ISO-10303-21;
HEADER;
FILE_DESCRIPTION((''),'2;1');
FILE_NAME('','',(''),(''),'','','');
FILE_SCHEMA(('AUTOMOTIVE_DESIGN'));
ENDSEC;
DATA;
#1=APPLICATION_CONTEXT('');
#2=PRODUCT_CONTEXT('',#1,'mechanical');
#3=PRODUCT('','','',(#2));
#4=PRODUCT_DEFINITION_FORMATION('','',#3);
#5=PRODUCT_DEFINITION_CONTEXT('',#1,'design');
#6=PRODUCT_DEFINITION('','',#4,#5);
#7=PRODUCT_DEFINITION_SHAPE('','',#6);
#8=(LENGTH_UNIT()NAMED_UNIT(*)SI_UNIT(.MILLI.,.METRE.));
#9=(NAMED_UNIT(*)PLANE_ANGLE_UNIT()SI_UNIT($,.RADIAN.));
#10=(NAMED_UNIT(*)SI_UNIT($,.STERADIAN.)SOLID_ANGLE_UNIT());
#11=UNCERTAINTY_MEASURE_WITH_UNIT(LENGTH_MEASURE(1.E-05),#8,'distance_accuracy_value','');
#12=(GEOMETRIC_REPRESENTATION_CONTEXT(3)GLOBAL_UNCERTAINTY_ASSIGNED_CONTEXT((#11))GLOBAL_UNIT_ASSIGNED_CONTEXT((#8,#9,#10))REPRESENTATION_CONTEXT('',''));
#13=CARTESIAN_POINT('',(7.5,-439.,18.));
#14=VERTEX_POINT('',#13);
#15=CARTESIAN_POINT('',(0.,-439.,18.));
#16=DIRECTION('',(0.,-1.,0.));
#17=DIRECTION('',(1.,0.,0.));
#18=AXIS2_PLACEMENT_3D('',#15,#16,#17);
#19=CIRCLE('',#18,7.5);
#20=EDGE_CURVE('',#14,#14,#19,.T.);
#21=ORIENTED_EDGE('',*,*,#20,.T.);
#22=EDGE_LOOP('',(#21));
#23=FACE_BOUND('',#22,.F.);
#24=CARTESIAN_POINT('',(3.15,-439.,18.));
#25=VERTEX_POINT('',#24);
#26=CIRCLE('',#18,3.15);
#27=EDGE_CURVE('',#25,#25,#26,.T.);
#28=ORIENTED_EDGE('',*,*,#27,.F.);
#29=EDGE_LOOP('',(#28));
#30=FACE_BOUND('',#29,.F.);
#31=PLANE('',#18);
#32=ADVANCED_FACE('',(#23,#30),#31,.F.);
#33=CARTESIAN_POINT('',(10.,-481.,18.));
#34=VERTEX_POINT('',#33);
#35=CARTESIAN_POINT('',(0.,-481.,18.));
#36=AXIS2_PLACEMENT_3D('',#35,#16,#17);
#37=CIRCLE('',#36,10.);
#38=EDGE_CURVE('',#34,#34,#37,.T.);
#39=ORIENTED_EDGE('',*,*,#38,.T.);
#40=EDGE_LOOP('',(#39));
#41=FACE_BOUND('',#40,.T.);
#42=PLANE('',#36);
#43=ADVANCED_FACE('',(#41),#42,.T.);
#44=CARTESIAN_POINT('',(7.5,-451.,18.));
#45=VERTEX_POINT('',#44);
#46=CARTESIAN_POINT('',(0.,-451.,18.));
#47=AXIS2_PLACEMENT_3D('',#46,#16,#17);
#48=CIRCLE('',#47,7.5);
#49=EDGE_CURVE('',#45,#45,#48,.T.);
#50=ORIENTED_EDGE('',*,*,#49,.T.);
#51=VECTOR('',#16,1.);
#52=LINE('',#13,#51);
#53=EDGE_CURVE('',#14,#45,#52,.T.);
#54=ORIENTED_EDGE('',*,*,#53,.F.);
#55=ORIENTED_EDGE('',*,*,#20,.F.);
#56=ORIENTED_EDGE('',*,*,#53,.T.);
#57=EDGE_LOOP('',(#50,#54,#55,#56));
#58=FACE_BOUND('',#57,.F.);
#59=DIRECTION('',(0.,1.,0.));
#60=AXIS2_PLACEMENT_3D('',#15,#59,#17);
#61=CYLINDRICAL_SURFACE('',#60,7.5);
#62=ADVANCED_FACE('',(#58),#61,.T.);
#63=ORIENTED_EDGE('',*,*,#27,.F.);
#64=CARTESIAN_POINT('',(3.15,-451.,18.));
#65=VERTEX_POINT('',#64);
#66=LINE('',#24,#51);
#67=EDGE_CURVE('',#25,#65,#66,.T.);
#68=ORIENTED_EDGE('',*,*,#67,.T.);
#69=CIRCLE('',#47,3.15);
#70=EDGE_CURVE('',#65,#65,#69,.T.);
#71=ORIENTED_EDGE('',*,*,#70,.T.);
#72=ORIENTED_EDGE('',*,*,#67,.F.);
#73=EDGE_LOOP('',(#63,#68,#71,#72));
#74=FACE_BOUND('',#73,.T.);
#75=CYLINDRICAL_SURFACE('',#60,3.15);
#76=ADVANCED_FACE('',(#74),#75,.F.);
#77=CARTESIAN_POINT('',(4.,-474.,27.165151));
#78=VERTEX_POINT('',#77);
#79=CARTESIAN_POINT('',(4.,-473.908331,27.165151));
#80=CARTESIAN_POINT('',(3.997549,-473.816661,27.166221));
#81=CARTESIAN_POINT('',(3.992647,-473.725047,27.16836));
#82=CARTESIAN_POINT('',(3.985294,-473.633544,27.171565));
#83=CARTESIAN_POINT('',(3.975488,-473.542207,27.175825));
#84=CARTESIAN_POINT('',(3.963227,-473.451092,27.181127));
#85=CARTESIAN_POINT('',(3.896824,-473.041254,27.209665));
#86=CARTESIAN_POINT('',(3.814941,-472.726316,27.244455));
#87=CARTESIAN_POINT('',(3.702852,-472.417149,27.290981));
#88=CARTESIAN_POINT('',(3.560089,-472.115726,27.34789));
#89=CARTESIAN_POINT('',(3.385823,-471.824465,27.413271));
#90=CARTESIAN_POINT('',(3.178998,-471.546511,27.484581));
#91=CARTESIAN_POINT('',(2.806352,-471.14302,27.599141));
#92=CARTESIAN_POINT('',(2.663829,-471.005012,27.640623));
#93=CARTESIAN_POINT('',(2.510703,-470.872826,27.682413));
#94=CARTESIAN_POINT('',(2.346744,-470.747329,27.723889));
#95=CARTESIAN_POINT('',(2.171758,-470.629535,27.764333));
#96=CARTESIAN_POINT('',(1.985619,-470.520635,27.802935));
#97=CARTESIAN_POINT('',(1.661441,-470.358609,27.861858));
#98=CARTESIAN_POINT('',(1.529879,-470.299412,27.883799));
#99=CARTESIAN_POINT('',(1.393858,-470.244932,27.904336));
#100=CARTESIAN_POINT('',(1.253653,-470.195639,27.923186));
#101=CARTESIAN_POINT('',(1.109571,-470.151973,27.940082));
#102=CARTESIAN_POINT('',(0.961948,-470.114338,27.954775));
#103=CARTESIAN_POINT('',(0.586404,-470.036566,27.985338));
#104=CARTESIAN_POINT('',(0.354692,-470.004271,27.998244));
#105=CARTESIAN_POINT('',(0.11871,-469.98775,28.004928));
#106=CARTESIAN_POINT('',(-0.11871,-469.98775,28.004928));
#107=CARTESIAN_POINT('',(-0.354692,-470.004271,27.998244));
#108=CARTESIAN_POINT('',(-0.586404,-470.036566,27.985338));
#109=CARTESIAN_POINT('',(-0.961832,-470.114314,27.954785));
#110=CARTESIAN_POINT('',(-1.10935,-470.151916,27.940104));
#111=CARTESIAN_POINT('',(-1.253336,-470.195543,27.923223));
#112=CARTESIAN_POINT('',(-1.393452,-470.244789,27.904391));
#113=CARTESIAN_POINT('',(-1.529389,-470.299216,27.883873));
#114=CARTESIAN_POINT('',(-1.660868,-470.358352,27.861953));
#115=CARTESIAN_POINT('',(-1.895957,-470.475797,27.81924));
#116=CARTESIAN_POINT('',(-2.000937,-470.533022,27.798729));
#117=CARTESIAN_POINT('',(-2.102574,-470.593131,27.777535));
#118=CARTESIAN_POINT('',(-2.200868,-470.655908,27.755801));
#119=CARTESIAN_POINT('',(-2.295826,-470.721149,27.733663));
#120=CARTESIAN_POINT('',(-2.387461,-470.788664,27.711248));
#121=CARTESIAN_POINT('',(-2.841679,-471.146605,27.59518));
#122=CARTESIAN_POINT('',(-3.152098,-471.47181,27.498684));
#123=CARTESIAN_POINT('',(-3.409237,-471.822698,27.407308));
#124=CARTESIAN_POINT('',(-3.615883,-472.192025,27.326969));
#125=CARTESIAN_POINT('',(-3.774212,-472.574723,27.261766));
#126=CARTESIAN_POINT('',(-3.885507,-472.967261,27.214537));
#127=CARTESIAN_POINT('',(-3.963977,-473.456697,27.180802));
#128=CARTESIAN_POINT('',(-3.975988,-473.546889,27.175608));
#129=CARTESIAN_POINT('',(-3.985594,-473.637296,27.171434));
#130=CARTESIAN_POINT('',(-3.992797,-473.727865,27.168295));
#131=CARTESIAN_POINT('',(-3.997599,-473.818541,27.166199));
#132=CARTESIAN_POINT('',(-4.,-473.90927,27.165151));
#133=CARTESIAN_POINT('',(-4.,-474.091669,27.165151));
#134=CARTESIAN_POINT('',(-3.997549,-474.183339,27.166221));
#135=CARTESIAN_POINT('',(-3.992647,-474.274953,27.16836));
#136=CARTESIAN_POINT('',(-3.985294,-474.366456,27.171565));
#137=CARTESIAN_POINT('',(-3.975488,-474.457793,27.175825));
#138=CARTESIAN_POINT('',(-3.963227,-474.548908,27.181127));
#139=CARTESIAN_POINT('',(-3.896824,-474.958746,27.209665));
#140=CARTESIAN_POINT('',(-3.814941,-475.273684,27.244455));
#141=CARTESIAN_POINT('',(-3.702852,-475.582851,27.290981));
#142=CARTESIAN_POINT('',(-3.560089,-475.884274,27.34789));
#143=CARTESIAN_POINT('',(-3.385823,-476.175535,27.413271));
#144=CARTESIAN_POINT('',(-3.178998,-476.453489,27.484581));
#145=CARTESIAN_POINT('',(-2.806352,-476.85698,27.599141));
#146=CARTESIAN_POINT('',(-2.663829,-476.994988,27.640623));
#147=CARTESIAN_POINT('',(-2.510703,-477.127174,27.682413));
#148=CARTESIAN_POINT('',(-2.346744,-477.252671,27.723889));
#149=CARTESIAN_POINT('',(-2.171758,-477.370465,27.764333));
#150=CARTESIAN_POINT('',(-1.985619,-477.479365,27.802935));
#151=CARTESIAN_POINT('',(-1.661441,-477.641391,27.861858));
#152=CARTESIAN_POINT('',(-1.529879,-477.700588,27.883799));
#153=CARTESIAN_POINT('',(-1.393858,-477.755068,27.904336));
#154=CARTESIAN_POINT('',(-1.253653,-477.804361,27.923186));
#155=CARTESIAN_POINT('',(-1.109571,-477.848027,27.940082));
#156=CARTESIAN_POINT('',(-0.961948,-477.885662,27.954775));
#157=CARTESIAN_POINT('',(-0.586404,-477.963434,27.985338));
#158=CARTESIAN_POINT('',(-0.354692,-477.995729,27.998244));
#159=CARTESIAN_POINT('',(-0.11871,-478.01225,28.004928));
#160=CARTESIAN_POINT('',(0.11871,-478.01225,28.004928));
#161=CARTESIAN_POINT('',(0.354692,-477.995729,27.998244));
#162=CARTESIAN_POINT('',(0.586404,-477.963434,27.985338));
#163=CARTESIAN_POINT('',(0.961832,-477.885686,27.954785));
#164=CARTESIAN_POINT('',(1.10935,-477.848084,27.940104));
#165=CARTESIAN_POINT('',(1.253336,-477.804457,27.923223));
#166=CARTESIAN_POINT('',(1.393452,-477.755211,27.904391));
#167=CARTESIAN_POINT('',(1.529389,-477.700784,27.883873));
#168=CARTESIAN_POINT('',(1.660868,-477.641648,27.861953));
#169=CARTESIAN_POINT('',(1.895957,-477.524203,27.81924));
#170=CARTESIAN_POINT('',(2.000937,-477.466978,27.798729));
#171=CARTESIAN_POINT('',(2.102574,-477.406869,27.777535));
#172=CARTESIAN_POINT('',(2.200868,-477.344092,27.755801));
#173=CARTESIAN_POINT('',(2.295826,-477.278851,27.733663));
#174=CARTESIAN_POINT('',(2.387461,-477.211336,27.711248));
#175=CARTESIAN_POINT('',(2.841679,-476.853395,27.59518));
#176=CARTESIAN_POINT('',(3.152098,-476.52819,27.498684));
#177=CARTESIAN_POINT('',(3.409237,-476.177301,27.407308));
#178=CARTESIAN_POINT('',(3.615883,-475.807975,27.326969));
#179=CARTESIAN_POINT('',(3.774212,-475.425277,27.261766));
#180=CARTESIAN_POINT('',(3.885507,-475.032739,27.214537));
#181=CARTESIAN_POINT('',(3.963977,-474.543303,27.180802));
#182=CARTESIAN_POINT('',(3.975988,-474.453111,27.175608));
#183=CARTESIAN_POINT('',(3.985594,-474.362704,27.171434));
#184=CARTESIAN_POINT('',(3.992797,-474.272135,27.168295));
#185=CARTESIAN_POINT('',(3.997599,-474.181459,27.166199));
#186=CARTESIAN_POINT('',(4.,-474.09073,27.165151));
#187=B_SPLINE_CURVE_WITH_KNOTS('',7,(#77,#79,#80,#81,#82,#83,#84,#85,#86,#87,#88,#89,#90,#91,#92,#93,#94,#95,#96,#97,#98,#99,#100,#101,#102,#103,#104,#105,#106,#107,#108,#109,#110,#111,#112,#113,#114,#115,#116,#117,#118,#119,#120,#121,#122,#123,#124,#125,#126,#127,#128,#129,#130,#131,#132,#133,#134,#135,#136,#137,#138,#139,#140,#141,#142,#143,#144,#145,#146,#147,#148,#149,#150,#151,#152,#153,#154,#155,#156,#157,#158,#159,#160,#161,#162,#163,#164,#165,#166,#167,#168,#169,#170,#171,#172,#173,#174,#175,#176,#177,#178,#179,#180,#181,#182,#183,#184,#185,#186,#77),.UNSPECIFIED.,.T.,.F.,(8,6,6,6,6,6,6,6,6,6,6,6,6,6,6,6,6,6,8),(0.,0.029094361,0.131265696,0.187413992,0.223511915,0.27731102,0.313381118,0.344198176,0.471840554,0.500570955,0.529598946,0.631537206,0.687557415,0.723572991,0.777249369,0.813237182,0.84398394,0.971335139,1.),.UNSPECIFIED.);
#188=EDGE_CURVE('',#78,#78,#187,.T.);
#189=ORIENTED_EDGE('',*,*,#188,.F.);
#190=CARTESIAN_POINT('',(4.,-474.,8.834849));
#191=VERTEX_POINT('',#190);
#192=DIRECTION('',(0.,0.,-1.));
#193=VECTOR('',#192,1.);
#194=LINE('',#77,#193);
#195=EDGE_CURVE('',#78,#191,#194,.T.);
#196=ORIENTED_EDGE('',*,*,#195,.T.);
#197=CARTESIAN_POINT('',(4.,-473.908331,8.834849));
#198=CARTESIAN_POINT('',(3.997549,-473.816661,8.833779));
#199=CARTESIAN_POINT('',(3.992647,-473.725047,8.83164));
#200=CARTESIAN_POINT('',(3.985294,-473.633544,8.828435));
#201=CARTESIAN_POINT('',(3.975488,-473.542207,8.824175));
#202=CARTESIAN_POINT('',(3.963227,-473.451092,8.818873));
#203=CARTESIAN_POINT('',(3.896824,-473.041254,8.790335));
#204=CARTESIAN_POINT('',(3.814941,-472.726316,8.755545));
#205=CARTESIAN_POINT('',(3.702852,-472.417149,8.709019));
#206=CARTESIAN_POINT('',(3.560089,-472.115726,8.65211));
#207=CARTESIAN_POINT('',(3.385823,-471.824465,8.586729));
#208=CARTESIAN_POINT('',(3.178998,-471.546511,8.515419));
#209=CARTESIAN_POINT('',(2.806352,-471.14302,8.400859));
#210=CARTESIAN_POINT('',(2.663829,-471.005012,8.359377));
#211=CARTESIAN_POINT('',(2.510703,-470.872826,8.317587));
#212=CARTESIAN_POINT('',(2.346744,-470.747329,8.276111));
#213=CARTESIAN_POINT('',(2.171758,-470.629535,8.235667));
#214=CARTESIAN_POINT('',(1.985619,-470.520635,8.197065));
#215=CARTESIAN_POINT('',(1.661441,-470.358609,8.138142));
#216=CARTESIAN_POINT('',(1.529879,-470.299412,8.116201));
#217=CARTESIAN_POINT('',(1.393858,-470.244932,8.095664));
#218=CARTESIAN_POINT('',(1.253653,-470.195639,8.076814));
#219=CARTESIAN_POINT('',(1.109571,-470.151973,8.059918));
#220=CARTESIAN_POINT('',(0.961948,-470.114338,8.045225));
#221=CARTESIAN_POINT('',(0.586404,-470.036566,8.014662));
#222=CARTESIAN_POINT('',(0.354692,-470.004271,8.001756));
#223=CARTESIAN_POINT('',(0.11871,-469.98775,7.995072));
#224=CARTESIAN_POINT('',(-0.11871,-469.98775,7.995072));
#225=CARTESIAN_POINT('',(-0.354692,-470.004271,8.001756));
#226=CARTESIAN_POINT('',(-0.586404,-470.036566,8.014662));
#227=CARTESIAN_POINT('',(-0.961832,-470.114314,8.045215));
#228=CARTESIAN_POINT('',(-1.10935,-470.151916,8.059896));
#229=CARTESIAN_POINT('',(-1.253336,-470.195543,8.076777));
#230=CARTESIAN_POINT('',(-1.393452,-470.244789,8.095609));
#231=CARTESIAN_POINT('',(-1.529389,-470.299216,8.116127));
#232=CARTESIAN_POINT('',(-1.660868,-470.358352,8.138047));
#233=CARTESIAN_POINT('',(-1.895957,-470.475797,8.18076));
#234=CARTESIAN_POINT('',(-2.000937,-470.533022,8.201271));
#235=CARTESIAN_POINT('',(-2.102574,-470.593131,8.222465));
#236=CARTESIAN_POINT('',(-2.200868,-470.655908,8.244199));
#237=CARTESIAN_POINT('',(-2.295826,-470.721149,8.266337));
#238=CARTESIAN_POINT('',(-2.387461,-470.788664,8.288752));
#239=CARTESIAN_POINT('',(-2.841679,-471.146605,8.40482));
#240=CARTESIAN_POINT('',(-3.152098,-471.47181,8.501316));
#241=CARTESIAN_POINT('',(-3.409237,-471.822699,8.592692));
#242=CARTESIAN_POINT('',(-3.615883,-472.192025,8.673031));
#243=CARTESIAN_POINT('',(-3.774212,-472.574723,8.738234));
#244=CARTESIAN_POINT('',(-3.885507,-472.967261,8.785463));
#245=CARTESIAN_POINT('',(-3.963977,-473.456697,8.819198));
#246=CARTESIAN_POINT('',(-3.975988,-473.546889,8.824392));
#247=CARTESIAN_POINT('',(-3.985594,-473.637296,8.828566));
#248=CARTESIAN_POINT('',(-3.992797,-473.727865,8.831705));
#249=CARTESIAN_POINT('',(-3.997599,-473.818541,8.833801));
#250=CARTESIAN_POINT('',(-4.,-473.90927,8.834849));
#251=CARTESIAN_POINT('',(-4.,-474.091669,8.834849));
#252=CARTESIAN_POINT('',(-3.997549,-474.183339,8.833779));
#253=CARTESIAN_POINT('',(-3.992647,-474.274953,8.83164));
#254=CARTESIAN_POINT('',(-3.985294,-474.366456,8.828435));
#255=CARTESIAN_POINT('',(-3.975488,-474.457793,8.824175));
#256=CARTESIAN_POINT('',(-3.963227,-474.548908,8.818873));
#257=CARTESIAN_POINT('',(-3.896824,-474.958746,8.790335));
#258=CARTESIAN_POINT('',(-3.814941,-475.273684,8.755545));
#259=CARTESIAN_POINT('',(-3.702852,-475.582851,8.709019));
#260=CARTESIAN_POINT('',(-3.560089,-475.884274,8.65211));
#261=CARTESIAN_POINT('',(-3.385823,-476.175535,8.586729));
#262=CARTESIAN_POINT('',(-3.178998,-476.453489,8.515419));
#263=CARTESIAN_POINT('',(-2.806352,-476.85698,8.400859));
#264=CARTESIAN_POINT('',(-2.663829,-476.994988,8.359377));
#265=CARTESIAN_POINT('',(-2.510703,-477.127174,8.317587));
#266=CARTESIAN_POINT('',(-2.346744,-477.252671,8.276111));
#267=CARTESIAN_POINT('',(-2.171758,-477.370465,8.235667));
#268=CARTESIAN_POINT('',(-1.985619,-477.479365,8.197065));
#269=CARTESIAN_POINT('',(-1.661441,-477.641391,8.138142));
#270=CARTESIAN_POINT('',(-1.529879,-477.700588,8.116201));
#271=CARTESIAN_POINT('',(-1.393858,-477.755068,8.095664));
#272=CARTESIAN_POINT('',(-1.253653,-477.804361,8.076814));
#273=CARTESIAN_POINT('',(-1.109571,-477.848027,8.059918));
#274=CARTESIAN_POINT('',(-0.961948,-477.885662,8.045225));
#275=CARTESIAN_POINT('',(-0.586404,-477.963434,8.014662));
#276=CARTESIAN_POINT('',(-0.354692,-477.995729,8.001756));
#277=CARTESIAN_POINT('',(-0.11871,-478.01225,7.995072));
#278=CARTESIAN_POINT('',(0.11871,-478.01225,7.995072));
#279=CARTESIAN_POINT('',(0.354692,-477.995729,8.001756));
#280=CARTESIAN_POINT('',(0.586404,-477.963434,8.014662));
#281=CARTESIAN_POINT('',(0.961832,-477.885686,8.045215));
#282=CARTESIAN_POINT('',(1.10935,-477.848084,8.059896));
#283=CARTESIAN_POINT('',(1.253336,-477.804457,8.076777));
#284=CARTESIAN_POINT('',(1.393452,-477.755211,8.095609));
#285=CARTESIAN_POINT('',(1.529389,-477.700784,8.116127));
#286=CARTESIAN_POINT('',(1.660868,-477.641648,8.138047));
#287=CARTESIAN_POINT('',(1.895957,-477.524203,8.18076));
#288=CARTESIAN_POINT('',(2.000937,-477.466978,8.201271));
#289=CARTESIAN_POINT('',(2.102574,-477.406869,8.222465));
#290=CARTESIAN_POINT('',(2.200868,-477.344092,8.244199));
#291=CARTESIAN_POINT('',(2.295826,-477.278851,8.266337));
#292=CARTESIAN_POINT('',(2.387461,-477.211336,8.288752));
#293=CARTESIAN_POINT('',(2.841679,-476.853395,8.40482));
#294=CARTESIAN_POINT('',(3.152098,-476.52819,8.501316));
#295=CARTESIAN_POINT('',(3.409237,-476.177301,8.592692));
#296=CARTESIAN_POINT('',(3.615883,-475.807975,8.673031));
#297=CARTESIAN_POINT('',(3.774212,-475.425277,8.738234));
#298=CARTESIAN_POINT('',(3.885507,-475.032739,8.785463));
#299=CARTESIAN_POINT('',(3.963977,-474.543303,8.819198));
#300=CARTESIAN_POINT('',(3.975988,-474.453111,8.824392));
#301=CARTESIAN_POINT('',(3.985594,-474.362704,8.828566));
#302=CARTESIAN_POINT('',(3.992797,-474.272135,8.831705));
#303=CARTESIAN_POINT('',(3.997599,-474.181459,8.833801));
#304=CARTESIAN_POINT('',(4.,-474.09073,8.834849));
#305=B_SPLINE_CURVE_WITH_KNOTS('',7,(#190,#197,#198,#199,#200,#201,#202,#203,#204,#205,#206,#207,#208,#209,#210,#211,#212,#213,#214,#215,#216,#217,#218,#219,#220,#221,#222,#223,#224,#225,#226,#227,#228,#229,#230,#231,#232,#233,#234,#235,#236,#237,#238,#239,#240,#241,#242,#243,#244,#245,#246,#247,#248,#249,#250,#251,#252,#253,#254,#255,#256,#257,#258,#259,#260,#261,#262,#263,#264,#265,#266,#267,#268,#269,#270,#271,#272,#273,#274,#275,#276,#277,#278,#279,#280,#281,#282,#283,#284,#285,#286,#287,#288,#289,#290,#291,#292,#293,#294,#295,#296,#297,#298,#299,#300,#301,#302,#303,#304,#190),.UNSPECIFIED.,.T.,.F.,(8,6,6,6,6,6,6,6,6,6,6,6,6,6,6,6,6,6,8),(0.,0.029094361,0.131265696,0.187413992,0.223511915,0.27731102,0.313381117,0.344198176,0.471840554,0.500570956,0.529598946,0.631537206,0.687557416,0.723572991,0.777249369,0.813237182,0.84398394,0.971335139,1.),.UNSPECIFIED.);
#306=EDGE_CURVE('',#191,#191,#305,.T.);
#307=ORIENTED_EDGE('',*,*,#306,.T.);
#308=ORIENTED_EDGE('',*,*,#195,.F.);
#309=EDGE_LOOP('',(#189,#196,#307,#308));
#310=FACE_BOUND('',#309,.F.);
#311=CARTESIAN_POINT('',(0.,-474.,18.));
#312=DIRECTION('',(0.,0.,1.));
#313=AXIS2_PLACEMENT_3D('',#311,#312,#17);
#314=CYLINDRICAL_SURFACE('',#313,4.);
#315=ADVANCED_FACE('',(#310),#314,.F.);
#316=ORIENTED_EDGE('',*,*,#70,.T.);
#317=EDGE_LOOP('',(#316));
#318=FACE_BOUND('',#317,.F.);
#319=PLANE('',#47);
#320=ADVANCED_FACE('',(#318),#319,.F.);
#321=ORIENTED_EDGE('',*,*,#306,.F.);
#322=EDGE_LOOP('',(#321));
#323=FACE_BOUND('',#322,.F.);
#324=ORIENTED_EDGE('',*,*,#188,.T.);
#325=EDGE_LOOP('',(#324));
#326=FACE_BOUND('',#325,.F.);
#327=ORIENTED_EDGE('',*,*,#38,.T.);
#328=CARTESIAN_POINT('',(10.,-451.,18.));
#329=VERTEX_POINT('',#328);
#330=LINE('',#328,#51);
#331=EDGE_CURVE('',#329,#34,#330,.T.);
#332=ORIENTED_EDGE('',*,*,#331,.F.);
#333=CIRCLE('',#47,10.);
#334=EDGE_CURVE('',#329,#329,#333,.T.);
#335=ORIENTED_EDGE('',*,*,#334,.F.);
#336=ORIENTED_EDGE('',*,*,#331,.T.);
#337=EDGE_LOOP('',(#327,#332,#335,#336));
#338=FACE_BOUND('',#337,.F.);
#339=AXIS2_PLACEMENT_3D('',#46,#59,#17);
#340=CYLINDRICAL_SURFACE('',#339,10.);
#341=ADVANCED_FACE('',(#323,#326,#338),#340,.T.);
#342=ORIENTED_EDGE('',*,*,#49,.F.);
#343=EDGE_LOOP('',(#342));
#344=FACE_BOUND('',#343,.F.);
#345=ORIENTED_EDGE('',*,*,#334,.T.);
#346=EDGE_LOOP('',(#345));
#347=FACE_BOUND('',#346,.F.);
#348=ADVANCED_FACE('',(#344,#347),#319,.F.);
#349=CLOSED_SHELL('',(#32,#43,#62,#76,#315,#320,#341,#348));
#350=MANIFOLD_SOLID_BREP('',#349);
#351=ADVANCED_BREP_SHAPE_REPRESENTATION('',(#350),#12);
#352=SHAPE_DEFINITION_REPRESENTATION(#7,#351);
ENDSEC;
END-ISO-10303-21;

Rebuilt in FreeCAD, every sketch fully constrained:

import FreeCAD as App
import Part
import Sketcher

V = App.Vector
Q = App.Units.Quantity

doc = App.newDocument("Part")
params = doc.addObject("Spreadsheet::Sheet", "Params")
for row, (alias, value) in enumerate([
    ("sketch1_diameter", "15 mm"),
    ("sketch1_diameter2", "6.3 mm"),
    ("pad1_length", "12 mm"),
    ("sketch2_diameter", "20 mm"),
    ("pad2_length", "30 mm"),
    ("sketch3_diameter", "8 mm"),
], start=1):
    params.set(f"A{row}", alias)
    params.set(f"B{row}", "=" + value)
    params.setAlias(f"B{row}", alias)

body = doc.addObject("PartDesign::Body", "Body")

# Sketch on XZ plane
sketch1 = body.newObject("Sketcher::SketchObject", "Sketch")
sketch1.AttachmentSupport = (doc.getObject("XZ_Plane"), [""])
sketch1.MapMode = "FlatFace"
sketch1.addGeometry(Part.Circle(V(0, 0, 0), V(0, 0, 1), 7.5), False)
sketch1.addGeometry(Part.Circle(V(0, 0, 0), V(0, 0, 1), 3.1), False)
sketch1.addConstraint(Sketcher.Constraint("Coincident", 0, 3, -1, 1))
sketch1.addConstraint(Sketcher.Constraint("Coincident", 1, 3, -1, 1))
sketch1.addConstraint(Sketcher.Constraint("Diameter", 0, Q("15 mm")))
sketch1.addConstraint(Sketcher.Constraint("Diameter", 1, Q("6.3 mm")))
sketch1.setExpression("Constraints[2]", "Params.sketch1_diameter")
sketch1.setExpression("Constraints[3]", "Params.sketch1_diameter2")
pad1 = body.newObject("PartDesign::Pad", "Pad")
pad1.Profile = sketch1
pad1.setExpression("Length", "Params.pad1_length")

# Sketch on XZ plane
sketch2 = body.newObject("Sketcher::SketchObject", "Sketch001")
sketch2.AttachmentSupport = (doc.getObject("XZ_Plane"), [""])
sketch2.MapMode = "FlatFace"
sketch2.AttachmentOffset = App.Placement(V(0, 0, 12), App.Rotation())
sketch2.addGeometry(Part.Circle(V(0, 0, 0), V(0, 0, 1), 10), False)
sketch2.addConstraint(Sketcher.Constraint("Coincident", 0, 3, -1, 1))
sketch2.addConstraint(Sketcher.Constraint("Diameter", 0, Q("20 mm")))
sketch2.setExpression("Constraints[1]", "Params.sketch2_diameter")
pad2 = body.newObject("PartDesign::Pad", "Pad001")
pad2.Profile = sketch2
pad2.setExpression("Length", "Params.pad2_length")

# Sketch on XY plane
sketch3 = body.newObject("Sketcher::SketchObject", "Sketch002")
sketch3.AttachmentSupport = (doc.getObject("XY_Plane"), [""])
sketch3.MapMode = "FlatFace"
sketch3.addGeometry(Part.Circle(V(0, -35, 0), V(0, 0, 1), 4), False)
sketch3.addConstraint(Sketcher.Constraint("PointOnObject", 0, 3, -2))
sketch3.addConstraint(Sketcher.Constraint("Diameter", 0, Q("8 mm")))
sketch3.addConstraint(Sketcher.Constraint("DistanceY", 0, 3, -1, 1, Q("35 mm")))
sketch3.setExpression("Constraints[1]", "Params.sketch3_diameter")
pocket1 = body.newObject("PartDesign::Pocket", "Pocket")
pocket1.Profile = sketch3
pocket1.Type = "ThroughAll"
pocket1.Midplane = True
body2 = doc.addObject("PartDesign::Body", "Body001")
doc.recompute()

body.Placement = App.Placement(V(0, -439, 18), App.Rotation(V(0, 0, 1), 0))
boolean = body2.newObject("PartDesign::Boolean", "Boolean")
boolean.Type = "Fuse"
boolean.addObjects([body])

doc.recompute()
